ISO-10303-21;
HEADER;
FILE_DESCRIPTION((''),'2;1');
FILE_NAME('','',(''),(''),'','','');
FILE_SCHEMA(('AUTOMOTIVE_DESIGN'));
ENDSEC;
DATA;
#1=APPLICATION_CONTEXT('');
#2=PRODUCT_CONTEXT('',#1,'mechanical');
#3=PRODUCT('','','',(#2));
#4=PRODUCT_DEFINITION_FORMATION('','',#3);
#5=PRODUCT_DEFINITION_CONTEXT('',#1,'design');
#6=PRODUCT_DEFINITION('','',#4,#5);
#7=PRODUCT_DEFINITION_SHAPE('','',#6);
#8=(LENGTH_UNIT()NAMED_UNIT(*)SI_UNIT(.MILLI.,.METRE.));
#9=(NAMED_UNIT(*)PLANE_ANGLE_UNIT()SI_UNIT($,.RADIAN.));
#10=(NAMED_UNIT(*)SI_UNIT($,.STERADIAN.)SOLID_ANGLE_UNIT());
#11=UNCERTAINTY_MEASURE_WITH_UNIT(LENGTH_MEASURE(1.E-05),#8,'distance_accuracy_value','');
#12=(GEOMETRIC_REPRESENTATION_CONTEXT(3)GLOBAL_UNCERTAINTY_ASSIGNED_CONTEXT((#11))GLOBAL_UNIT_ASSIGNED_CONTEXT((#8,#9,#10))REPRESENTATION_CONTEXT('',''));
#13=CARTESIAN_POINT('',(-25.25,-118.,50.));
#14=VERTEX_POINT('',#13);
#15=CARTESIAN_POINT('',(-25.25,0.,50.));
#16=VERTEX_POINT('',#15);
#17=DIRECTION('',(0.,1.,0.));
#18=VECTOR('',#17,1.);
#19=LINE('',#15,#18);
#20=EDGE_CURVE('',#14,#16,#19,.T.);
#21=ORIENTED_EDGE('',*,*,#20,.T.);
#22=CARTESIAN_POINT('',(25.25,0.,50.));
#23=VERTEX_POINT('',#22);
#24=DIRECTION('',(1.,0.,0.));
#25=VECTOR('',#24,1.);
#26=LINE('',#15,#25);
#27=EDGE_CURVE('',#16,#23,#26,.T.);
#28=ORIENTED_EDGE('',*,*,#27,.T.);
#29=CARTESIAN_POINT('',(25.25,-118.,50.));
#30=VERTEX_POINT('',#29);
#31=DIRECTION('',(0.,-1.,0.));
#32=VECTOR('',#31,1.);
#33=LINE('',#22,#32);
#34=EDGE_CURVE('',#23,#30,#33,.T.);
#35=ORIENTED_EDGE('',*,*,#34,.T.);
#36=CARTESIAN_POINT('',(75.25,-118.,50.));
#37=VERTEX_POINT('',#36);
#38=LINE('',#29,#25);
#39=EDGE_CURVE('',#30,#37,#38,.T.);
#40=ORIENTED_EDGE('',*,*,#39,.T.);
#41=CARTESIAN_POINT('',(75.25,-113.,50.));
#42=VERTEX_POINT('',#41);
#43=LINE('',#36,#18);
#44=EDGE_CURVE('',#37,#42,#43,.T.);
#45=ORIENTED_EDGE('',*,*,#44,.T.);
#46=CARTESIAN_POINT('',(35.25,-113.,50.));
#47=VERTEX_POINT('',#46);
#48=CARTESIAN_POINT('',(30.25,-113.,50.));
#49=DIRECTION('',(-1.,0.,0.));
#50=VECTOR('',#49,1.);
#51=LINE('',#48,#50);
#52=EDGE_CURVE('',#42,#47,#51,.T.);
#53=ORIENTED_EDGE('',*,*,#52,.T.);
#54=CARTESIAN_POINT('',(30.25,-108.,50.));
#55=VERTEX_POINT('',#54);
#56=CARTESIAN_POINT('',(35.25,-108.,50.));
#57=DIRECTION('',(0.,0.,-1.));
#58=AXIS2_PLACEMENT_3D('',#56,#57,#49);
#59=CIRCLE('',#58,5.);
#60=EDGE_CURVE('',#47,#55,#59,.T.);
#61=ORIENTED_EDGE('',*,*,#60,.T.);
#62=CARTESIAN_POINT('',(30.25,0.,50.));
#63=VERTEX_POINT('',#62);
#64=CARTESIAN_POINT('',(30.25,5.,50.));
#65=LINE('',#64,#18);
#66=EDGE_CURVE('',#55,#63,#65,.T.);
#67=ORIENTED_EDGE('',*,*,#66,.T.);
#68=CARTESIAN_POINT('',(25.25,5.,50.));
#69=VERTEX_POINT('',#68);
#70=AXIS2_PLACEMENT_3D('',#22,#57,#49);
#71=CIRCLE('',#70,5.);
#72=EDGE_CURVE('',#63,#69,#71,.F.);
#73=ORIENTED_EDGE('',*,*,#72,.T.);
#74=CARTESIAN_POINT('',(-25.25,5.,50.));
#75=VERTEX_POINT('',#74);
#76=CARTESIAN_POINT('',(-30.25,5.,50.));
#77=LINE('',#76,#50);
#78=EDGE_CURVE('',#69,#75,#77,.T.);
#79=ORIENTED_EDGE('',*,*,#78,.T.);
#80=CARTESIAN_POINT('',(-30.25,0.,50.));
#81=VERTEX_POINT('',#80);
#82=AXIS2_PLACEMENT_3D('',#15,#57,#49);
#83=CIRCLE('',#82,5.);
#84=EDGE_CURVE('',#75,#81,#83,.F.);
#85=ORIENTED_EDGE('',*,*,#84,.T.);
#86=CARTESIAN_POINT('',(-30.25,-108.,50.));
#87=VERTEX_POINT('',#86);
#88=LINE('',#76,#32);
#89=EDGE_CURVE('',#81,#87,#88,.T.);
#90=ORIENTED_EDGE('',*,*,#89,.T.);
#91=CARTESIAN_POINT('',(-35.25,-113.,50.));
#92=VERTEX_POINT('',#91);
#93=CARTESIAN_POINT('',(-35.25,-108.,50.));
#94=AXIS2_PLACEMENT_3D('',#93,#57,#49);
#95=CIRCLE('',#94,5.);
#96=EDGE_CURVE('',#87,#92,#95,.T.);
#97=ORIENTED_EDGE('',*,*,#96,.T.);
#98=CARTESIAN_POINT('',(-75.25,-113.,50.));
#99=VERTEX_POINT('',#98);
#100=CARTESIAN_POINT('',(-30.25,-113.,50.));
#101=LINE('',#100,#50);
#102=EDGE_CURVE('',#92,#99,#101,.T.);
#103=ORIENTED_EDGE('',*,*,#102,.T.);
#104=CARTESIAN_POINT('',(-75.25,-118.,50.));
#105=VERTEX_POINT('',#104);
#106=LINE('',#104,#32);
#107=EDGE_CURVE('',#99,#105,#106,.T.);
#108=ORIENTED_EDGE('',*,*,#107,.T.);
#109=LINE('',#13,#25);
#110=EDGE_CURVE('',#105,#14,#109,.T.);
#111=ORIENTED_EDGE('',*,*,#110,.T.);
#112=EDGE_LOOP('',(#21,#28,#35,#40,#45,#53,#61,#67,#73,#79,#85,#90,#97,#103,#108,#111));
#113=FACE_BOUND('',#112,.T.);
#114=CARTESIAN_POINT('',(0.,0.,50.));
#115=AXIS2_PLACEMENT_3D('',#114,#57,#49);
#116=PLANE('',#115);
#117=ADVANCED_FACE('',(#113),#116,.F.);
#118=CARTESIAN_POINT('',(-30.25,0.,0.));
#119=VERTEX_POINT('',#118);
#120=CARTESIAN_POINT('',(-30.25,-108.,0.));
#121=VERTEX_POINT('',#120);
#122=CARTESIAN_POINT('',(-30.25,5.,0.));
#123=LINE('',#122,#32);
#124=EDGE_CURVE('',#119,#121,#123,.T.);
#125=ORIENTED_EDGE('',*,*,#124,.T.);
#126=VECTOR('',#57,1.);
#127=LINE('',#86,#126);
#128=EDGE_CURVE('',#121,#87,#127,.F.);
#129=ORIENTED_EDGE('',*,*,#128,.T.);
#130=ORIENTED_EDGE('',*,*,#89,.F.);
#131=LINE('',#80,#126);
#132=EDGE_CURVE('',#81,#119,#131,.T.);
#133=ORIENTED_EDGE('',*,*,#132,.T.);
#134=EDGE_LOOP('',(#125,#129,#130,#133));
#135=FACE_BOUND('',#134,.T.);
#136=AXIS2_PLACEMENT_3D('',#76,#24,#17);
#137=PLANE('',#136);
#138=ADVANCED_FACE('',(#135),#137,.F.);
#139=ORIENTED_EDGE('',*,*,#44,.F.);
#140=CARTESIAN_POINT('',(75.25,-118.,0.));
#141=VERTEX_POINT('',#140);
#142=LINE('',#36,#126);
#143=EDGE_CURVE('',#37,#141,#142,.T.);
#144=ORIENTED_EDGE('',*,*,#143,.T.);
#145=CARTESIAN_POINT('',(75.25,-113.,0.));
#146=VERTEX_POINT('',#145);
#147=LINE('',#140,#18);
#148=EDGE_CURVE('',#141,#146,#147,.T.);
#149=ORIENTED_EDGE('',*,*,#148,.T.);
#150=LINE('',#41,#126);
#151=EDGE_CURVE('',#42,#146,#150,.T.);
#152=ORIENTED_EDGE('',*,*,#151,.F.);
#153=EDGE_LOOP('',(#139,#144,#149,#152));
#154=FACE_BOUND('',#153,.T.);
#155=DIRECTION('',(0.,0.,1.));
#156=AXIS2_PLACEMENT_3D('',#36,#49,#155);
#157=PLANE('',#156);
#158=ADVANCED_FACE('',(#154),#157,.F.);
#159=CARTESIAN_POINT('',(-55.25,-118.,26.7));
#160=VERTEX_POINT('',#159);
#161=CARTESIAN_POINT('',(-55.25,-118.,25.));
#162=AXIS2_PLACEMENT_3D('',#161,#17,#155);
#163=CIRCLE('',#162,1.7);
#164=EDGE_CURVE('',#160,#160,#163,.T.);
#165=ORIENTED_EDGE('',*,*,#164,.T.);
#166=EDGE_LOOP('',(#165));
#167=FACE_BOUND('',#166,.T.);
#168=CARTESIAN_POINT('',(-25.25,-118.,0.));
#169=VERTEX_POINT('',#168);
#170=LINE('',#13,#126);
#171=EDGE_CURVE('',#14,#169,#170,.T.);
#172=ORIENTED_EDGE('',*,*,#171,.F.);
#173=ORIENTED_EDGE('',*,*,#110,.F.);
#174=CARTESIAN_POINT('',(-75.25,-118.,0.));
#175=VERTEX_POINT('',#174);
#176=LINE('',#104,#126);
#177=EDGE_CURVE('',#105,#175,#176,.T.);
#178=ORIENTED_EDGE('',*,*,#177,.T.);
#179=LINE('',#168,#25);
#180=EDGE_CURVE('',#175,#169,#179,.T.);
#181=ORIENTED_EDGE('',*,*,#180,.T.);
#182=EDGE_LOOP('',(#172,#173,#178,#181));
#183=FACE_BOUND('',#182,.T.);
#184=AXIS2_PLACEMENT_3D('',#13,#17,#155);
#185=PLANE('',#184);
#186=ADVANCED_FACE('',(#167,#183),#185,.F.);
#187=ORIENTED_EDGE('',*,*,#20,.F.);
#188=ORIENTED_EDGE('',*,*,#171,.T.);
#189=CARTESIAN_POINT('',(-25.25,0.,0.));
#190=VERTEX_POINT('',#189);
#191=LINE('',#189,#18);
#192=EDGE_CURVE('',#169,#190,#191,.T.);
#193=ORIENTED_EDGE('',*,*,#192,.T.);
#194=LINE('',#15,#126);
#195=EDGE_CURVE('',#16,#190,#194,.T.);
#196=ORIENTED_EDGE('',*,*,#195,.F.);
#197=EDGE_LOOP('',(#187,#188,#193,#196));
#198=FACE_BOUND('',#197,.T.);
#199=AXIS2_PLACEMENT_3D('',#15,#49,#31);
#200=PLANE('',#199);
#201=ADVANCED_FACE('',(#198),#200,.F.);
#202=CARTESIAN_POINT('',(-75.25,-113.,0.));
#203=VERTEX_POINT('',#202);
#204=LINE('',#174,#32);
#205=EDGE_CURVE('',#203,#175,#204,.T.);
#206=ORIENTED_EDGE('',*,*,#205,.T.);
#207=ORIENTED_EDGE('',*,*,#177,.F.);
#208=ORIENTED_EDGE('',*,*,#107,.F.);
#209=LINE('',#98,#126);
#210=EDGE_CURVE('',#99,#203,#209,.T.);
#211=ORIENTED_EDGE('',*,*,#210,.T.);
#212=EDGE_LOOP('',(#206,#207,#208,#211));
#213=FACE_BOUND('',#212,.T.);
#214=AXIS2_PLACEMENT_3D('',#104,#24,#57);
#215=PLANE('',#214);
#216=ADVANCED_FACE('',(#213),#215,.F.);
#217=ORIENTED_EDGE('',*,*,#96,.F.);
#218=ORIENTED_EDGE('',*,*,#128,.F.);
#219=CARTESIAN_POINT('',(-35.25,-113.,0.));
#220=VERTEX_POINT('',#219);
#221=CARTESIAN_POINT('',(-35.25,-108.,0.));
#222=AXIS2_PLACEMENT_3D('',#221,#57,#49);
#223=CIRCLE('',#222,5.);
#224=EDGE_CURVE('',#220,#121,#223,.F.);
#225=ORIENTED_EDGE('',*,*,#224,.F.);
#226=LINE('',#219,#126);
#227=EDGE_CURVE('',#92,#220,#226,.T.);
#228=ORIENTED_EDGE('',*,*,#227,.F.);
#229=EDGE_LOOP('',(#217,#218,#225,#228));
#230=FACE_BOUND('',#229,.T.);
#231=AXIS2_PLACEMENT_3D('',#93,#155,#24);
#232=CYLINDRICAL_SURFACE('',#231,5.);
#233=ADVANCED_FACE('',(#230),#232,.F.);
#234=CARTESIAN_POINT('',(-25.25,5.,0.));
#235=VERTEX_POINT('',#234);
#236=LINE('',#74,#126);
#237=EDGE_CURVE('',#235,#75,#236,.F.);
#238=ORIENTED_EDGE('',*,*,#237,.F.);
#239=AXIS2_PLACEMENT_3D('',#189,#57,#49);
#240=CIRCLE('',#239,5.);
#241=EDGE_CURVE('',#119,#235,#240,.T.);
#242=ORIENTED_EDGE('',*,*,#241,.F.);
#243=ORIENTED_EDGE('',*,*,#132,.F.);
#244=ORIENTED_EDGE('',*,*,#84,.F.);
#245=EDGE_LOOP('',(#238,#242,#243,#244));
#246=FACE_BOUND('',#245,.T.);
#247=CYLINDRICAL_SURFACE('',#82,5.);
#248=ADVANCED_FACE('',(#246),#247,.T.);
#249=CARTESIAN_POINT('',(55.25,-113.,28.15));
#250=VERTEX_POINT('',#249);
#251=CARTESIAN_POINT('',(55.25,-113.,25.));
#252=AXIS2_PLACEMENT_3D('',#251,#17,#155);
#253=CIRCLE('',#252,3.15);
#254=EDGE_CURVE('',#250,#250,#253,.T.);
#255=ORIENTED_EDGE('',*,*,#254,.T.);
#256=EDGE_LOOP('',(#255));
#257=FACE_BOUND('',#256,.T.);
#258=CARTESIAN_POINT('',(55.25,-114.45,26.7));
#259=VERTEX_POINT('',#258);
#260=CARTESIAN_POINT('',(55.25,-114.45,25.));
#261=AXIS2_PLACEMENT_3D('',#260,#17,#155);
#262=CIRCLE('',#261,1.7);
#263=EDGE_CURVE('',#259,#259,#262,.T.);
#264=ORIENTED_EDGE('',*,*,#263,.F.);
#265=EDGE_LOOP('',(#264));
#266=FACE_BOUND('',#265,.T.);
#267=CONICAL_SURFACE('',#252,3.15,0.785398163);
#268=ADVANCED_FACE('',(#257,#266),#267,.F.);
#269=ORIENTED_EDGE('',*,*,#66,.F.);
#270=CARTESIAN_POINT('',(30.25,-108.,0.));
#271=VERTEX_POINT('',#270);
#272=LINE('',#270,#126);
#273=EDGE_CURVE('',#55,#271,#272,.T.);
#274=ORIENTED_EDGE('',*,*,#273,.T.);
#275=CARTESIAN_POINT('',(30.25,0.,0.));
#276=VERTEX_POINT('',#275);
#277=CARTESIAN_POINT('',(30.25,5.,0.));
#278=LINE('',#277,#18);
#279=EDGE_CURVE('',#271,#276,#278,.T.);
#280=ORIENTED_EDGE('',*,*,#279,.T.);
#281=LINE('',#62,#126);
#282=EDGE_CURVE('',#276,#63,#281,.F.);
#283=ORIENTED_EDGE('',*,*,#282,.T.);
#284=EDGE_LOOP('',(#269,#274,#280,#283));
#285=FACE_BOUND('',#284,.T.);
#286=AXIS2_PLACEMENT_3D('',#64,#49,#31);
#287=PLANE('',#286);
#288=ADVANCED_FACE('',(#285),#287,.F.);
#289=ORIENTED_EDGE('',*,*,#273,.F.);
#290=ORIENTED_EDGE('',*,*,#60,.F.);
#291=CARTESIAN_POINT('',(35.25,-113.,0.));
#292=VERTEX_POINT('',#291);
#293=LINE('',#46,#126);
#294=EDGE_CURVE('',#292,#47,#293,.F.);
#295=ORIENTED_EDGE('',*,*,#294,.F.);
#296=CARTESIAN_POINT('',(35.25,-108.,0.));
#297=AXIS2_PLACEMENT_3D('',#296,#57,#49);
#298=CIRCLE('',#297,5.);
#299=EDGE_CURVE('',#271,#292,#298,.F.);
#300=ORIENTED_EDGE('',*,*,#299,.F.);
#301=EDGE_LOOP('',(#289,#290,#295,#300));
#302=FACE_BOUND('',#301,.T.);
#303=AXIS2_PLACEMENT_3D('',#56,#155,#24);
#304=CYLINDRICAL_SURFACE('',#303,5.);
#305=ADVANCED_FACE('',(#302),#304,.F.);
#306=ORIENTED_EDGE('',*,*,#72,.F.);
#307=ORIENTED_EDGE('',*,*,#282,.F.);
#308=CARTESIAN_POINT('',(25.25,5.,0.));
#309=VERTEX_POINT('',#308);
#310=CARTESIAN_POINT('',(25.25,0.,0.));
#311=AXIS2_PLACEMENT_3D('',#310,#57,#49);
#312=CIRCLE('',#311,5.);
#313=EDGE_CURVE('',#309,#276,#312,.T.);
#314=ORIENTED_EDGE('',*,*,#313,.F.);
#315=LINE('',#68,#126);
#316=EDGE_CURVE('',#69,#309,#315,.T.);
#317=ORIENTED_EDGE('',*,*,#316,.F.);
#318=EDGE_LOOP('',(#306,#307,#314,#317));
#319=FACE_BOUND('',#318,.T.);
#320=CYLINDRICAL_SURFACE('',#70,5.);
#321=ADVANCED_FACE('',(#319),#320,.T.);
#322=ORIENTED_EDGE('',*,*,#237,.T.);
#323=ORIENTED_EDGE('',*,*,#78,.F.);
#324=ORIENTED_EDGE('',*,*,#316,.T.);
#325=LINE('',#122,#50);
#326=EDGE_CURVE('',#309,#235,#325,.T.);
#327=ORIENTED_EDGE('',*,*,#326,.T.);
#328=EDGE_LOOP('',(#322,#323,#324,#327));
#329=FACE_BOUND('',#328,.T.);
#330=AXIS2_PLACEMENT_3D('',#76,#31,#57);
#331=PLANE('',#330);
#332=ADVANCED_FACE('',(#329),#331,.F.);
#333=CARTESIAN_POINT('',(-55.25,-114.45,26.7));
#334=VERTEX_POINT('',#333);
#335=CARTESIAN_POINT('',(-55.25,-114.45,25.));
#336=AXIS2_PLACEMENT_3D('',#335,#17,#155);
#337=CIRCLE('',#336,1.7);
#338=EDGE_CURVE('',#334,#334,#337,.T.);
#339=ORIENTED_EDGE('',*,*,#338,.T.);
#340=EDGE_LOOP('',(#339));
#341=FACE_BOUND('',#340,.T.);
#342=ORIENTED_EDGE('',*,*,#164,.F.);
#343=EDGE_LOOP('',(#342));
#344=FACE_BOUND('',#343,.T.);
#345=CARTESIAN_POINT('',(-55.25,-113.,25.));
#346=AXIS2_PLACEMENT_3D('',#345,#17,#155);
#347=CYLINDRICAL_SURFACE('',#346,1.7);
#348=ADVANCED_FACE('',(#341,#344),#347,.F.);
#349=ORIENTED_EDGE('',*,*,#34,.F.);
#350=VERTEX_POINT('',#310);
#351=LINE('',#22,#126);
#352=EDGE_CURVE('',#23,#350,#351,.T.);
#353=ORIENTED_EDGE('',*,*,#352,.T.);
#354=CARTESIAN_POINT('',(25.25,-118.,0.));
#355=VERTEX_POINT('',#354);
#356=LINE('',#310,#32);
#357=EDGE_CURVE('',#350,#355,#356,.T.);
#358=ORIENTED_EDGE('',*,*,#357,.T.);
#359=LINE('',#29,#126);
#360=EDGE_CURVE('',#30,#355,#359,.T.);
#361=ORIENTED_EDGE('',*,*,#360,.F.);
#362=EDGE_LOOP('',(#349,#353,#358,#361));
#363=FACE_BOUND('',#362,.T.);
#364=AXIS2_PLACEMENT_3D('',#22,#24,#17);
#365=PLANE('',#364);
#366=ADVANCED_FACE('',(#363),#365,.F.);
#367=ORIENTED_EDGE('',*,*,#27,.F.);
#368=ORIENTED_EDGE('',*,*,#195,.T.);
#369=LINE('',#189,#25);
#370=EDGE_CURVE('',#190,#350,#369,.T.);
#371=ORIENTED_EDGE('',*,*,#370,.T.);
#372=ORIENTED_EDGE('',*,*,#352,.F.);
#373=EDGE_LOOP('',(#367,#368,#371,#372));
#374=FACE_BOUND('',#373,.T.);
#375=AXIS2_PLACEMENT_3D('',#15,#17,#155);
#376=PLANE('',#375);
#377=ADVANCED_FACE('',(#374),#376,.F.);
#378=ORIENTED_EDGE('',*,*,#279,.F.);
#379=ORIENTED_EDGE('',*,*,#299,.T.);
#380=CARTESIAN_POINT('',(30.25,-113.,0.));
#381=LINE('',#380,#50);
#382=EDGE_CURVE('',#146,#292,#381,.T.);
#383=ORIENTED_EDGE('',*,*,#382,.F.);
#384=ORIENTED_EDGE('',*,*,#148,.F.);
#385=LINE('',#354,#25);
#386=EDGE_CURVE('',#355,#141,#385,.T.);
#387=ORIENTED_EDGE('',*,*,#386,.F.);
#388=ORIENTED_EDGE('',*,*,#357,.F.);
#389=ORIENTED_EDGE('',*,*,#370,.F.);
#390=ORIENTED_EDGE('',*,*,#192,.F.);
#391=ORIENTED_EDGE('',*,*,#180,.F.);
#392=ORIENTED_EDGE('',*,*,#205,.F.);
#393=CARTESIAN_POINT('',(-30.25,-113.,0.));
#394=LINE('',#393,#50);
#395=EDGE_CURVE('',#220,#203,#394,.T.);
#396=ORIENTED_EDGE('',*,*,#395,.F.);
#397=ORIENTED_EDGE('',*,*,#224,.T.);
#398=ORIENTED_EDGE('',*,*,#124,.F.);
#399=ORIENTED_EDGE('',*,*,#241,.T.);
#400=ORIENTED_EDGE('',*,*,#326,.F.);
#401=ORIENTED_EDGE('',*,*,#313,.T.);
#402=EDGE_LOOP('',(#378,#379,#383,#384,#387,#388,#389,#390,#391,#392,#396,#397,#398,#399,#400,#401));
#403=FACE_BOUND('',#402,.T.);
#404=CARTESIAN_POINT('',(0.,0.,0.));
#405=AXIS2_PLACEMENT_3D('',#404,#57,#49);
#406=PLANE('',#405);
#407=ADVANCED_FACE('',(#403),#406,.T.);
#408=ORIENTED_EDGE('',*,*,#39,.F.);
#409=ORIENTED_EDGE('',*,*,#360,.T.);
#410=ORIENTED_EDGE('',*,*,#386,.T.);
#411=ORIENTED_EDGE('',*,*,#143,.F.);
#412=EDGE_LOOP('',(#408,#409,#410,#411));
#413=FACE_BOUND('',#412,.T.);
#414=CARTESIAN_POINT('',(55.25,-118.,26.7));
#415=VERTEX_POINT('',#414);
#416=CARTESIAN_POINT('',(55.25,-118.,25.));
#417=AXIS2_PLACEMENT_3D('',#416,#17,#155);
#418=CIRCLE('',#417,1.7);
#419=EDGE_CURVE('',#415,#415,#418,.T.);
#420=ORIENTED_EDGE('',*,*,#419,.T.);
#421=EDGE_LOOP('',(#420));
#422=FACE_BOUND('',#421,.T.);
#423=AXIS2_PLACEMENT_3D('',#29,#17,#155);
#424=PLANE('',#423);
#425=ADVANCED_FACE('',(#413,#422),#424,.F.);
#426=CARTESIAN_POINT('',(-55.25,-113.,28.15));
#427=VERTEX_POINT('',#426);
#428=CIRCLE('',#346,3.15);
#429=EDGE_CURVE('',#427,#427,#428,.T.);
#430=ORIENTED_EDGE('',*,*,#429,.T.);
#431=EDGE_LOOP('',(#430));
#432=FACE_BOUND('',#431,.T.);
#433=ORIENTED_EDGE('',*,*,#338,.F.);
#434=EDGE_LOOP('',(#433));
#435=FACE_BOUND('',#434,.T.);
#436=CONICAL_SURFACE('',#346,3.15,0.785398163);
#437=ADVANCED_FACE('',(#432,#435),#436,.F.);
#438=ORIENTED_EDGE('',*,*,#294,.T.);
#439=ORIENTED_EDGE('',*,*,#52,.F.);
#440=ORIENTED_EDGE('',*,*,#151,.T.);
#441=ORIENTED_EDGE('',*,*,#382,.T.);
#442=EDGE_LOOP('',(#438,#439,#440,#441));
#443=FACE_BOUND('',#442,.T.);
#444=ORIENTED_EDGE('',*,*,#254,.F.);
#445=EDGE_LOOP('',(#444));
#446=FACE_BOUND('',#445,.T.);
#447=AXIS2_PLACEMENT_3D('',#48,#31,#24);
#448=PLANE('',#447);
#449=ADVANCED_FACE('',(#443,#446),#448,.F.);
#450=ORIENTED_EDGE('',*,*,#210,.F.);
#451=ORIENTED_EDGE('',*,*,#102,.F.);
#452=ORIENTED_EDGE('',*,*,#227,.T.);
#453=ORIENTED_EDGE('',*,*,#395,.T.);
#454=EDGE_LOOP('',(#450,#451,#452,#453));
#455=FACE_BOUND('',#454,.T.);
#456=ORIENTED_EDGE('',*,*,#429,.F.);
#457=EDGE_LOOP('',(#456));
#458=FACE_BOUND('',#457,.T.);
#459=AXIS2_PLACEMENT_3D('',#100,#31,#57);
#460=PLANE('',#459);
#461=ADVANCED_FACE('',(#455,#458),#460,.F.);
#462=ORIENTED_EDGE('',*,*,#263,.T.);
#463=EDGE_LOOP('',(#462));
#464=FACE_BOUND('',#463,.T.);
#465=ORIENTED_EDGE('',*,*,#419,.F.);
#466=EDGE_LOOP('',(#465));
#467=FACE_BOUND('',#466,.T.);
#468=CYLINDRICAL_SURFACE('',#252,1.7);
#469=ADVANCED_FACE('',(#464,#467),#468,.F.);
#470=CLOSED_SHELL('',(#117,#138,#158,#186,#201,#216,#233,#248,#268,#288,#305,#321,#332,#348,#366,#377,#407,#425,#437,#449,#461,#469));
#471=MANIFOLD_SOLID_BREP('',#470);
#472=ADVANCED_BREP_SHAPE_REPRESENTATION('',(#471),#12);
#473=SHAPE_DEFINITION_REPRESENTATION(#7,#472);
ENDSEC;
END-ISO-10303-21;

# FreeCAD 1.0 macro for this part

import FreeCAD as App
import Part
import Sketcher
from FreeCAD import Vector
Q = App.Units.Quantity


def edges_at(feature, points):
    """Names of the edges that pass closest to the given points."""
    edges = feature.Shape.Edges
    near = lambda p: min(range(len(edges)), key=lambda i: edges[i].distToShape(Part.Vertex(*p))[0])
    return sorted({f"Edge{near(p) + 1}" for p in points})


def add_polygon(sketch, points):
    """Adds a closed chain of lines whose ends are joined by coincident constraints."""
    first, n = sketch.GeometryCount, len(points)
    for a, b in zip(points, points[1:] + points[:1]):
        sketch.addGeometry(Part.LineSegment(App.Vector(*a, 0), App.Vector(*b, 0)), False)
    for i in range(n):
        sketch.addConstraint(Sketcher.Constraint("Coincident", first + i, 2, first + (i + 1) % n, 1))

doc = App.newDocument("Part")
body = doc.addObject("PartDesign::Body", "Body")

# Sketch on XY plane
sketch1 = body.newObject("Sketcher::SketchObject", "Sketch")
sketch1.AttachmentSupport = (doc.getObject("XY_Plane"), [""])
sketch1.MapMode = "FlatFace"
add_polygon(sketch1, [(-25, 0), (25, 0), (25, -118), (75, -118), (75, -113), (30, -113), (30, 5), (-30, 5), (-30, -113), (-75, -113), (-75, -118), (-25, -118)])  # lines 0-11
sketch1.addConstraint(Sketcher.Constraint("Horizontal", 0))
sketch1.addConstraint(Sketcher.Constraint("Vertical", 1))
sketch1.addConstraint(Sketcher.Constraint("Horizontal", 2))
sketch1.addConstraint(Sketcher.Constraint("Vertical", 3))
sketch1.addConstraint(Sketcher.Constraint("Horizontal", 4))
sketch1.addConstraint(Sketcher.Constraint("Vertical", 5))
sketch1.addConstraint(Sketcher.Constraint("Horizontal", 6))
sketch1.addConstraint(Sketcher.Constraint("Vertical", 7))
sketch1.addConstraint(Sketcher.Constraint("Horizontal", 8))
sketch1.addConstraint(Sketcher.Constraint("Vertical", 9))
sketch1.addConstraint(Sketcher.Constraint("Horizontal", 10))
sketch1.addConstraint(Sketcher.Constraint("Vertical", 11))
sketch1.addConstraint(Sketcher.Constraint("Symmetric", 0, 2, 11, 2, -1, 1))
sketch1.addConstraint(Sketcher.Constraint("Symmetric", 4, 2, 7, 2, -2))
sketch1.addConstraint(Sketcher.Constraint("Symmetric", 2, 2, 9, 2, -2))
sketch1.addConstraint(Sketcher.Constraint("Equal", 1, 5))
sketch1.addConstraint(Sketcher.Constraint("DistanceX", 2, 1, 2, 2, Q("50 mm")))
sketch1.addConstraint(Sketcher.Constraint("DistanceX", 4, 2, 4, 1, Q("45 mm")))
sketch1.addConstraint(Sketcher.Constraint("DistanceY", 1, 2, 1, 1, Q("118 mm")))
sketch1.addConstraint(Sketcher.Constraint("DistanceY", 3, 1, 3, 2, Q("5 mm")))
sketch1.addConstraint(Sketcher.Constraint("DistanceX", 0, 1, 0, 2, Q("50.5 mm")))
pad1 = body.newObject("PartDesign::Pad", "Pad")
pad1.Profile = sketch1
pad1.Length = 50
doc.recompute()

fillet = body.newObject("PartDesign::Fillet", "Fillet")
fillet.Base = (pad1, edges_at(pad1, [
    (-30.25, -113, 25),
    (-30.25, 5, 25),
    (30.25, 5, 25),
    (30.25, -113, 25),
]))
fillet.Radius = 5

# Sketch on XZ plane
sketch2 = body.newObject("Sketcher::SketchObject", "Sketch001")
sketch2.AttachmentSupport = (doc.getObject("XZ_Plane"), [""])
sketch2.MapMode = "FlatFace"
sketch2.AttachmentOffset = App.Placement(Vector(0, 0, 113), App.Rotation())
sketch2.addGeometry(Part.Circle(Vector(-55.2, 25, 0), Vector(0, 0, 1), 1.7), False)
sketch2.addGeometry(Part.Circle(Vector(55.2, 25, 0), Vector(0, 0, 1), 1.7), False)
sketch2.addConstraint(Sketcher.Constraint("Equal", 0, 1))
sketch2.addConstraint(Sketcher.Constraint("Symmetric", 0, 3, 1, 3, -2))
sketch2.addConstraint(Sketcher.Constraint("Diameter", 0, Q("3.4 mm")))
sketch2.addConstraint(Sketcher.Constraint("DistanceY", -1, 1, 0, 3, Q("25 mm")))
sketch2.addConstraint(Sketcher.Constraint("DistanceX", 0, 3, 1, 3, Q("110.5 mm")))
doc.recompute()
hole = body.newObject("PartDesign::Hole", "Hole")
hole.Profile = sketch2
hole.ThreadType = "None"
hole.Diameter = 3.4
hole.DepthType = "ThroughAll"
hole.HoleCutType = "Countersink"
hole.HoleCutDiameter = 6.3
hole.HoleCutCountersinkAngle = 90
hole.Reversed = True

doc.recompute()
